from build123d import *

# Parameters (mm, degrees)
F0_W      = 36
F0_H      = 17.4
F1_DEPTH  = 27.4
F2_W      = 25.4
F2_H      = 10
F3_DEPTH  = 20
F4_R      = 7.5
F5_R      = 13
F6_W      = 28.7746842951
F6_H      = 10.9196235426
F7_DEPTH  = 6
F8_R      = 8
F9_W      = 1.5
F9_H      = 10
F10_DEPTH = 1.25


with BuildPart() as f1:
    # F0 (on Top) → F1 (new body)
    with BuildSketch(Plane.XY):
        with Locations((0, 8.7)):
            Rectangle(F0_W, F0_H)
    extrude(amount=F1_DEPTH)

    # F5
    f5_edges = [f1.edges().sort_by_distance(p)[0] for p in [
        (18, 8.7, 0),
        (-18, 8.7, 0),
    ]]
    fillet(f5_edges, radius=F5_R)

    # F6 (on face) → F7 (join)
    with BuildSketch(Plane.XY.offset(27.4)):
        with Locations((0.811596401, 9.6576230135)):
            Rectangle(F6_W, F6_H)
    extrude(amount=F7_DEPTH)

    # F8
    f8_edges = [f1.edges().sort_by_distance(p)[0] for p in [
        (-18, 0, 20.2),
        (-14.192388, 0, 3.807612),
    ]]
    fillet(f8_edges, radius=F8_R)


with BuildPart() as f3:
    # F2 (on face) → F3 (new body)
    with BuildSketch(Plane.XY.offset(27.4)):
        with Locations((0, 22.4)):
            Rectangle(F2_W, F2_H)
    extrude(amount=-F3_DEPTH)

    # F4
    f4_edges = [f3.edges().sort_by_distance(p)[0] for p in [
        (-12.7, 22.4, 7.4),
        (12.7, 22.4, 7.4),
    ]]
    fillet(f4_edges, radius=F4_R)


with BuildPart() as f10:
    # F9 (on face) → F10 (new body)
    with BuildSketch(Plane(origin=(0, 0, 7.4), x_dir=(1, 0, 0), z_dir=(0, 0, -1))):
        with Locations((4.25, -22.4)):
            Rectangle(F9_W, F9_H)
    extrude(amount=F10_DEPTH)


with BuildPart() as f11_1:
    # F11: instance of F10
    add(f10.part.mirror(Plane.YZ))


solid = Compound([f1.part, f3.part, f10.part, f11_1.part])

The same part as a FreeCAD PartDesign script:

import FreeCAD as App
import Part
import Sketcher
from FreeCAD import Vector
Q = App.Units.Quantity


def edges_at(feature, points):
    """Names of the edges that pass closest to the given points."""
    edges = feature.Shape.Edges
    near = lambda p: min(range(len(edges)), key=lambda i: edges[i].distToShape(Part.Vertex(*p))[0])
    return sorted({f"Edge{near(p) + 1}" for p in points})


def add_polygon(sketch, points):
    """Adds a closed chain of lines whose ends are joined by coincident constraints."""
    first, n = sketch.GeometryCount, len(points)
    for a, b in zip(points, points[1:] + points[:1]):
        sketch.addGeometry(Part.LineSegment(App.Vector(*a, 0), App.Vector(*b, 0)), False)
    for i in range(n):
        sketch.addConstraint(Sketcher.Constraint("Coincident", first + i, 2, first + (i + 1) % n, 1))

doc = App.newDocument("Part")
body = doc.addObject("PartDesign::Body", "Body")

sketch1 = doc.addObject("Sketcher::SketchObject", "Sketch")
body.addObject(sketch1)
sketch1.AttachmentSupport = (doc.XY_Plane, [""])
sketch1.MapMode = "FlatFace"
add_polygon(sketch1, [(-18, 17), (-18, 0), (18, 0), (18, 17)])
sketch1.addConstraint([
    Sketcher.Constraint("Vertical", 0),
    Sketcher.Constraint("Horizontal", 1),
    Sketcher.Constraint("Vertical", 2),
    Sketcher.Constraint("Horizontal", 3),
    Sketcher.Constraint("Symmetric", 0, 2, 1, 2, -1, 1),
    Sketcher.Constraint("DistanceX", 1, 1, 1, 2, Q("36 mm")),
    Sketcher.Constraint("DistanceY", 0, 2, 0, 1, Q("17.4 mm")),
])
pad1 = doc.addObject("PartDesign::Pad", "Pad")
body.addObject(pad1)
pad1.Profile = sketch1
pad1.Length = 27.4
doc.recompute()

fillet = doc.addObject("PartDesign::Fillet", "Fillet")
body.addObject(fillet)
fillet.Base = (pad1, edges_at(pad1, [(18, 8.7, 0), (-18, 8.7, 0)]))
fillet.Radius = 13

sketch2 = doc.addObject("Sketcher::SketchObject", "Sketch001")
body.addObject(sketch2)
sketch2.AttachmentSupport = (doc.XY_Plane, [""])
sketch2.MapMode = "FlatFace"
sketch2.AttachmentOffset = App.Placement(Vector(0, 0, 27.4), App.Rotation())
add_polygon(sketch2, [(-14, 15), (-14, 4), (15, 4), (15, 15)])
sketch2.addConstraint([
    Sketcher.Constraint("Vertical", 0),
    Sketcher.Constraint("Horizontal", 1),
    Sketcher.Constraint("Vertical", 2),
    Sketcher.Constraint("Horizontal", 3),
    Sketcher.Constraint("DistanceX", 1, 1, 1, 2, Q("28.774684 mm")),
    Sketcher.Constraint("DistanceY", 0, 2, 0, 1, Q("10.919624 mm")),
    Sketcher.Constraint("DistanceY", -1, 1, 0, 2, Q("4.197811 mm")),
    Sketcher.Constraint("DistanceX", -1, 1, 1, 2, Q("15.198939 mm")),
])
pad2 = doc.addObject("PartDesign::Pad", "Pad001")
body.addObject(pad2)
pad2.Profile = sketch2
pad2.Length = 6
doc.recompute()

fillet2 = doc.addObject("PartDesign::Fillet", "Fillet001")
body.addObject(fillet2)
fillet2.Base = (pad2, edges_at(pad2, [(-18, 0, 20.2), (-14.192, 0, 3.808)]))
fillet2.Radius = 8
body2 = doc.addObject("PartDesign::Body", "Body001")

sketch3 = doc.addObject("Sketcher::SketchObject", "Sketch002")
body2.addObject(sketch3)
sketch3.AttachmentSupport = (doc.getObject("XY_Plane001"), [""])
sketch3.MapMode = "FlatFace"
sketch3.AttachmentOffset = App.Placement(Vector(0, 0, 27.4), App.Rotation())
add_polygon(sketch3, [(-13, 27), (-13, 17), (13, 17), (13, 27)])
sketch3.addConstraint([
    Sketcher.Constraint("Vertical", 0),
    Sketcher.Constraint("Horizontal", 1),
    Sketcher.Constraint("Vertical", 2),
    Sketcher.Constraint("Horizontal", 3),
    Sketcher.Constraint("DistanceY", 0, 2, 0, 1, Q("10 mm")),
    Sketcher.Constraint("DistanceX", 1, 1, 1, 2, Q("25.4 mm")),
    Sketcher.Constraint("DistanceX", 0, 2, -1, 1, Q("12.7 mm")),
    Sketcher.Constraint("DistanceY", -1, 1, 0, 2, Q("17.4 mm")),
])
pad3 = doc.addObject("PartDesign::Pad", "Pad002")
body2.addObject(pad3)
pad3.Profile = sketch3
pad3.Length = 20
pad3.Reversed = True
doc.recompute()

fillet3 = doc.addObject("PartDesign::Fillet", "Fillet002")
body2.addObject(fillet3)
fillet3.Base = (pad3, edges_at(pad3, [(-12.7, 22.4, 7.4), (12.7, 22.4, 7.4)]))
fillet3.Radius = 7.5
body3 = doc.addObject("PartDesign::Body", "Body002")

sketch4 = doc.addObject("Sketcher::SketchObject", "Sketch003")
body3.addObject(sketch4)
sketch4.AttachmentSupport = (doc.getObject("XY_Plane002"), [""])
sketch4.MapMode = "FlatFace"
sketch4.AttachmentOffset = App.Placement(Vector(0, 0, 7.4), App.Rotation())
add_polygon(sketch4, [(3.5, 17.4), (3.5, 27.4), (5, 27.4), (5, 17.4)])
sketch4.addConstraint([
    Sketcher.Constraint("Vertical", 0),
    Sketcher.Constraint("Horizontal", 1),
    Sketcher.Constraint("Vertical", 2),
    Sketcher.Constraint("Horizontal", 3),
    Sketcher.Constraint("DistanceY", 0, 1, 0, 2, Q("10 mm")),
    Sketcher.Constraint("DistanceX", 1, 1, 1, 2, Q("1.5 mm")),
    Sketcher.Constraint("DistanceX", -1, 1, 1, 2, Q("5 mm")),
    Sketcher.Constraint("DistanceY", -1, 1, 0, 2, Q("27.4 mm")),
])
pad4 = doc.addObject("PartDesign::Pad", "Pad003")
body3.addObject(pad4)
pad4.Profile = sketch4
pad4.Length = 1.25
pad4.Reversed = True
body4 = doc.addObject("PartDesign::Body", "Body003")
doc.recompute()

mirroring = doc.addObject("Part::Mirroring", "Mirroring")
mirroring.Source = body3
mirroring.Base = Vector(0, 0, 0)
mirroring.Normal = Vector(1, 0, 0)
body4.BaseFeature = mirroring
doc.recompute()
mirroring.Visibility = False

doc.recompute()
